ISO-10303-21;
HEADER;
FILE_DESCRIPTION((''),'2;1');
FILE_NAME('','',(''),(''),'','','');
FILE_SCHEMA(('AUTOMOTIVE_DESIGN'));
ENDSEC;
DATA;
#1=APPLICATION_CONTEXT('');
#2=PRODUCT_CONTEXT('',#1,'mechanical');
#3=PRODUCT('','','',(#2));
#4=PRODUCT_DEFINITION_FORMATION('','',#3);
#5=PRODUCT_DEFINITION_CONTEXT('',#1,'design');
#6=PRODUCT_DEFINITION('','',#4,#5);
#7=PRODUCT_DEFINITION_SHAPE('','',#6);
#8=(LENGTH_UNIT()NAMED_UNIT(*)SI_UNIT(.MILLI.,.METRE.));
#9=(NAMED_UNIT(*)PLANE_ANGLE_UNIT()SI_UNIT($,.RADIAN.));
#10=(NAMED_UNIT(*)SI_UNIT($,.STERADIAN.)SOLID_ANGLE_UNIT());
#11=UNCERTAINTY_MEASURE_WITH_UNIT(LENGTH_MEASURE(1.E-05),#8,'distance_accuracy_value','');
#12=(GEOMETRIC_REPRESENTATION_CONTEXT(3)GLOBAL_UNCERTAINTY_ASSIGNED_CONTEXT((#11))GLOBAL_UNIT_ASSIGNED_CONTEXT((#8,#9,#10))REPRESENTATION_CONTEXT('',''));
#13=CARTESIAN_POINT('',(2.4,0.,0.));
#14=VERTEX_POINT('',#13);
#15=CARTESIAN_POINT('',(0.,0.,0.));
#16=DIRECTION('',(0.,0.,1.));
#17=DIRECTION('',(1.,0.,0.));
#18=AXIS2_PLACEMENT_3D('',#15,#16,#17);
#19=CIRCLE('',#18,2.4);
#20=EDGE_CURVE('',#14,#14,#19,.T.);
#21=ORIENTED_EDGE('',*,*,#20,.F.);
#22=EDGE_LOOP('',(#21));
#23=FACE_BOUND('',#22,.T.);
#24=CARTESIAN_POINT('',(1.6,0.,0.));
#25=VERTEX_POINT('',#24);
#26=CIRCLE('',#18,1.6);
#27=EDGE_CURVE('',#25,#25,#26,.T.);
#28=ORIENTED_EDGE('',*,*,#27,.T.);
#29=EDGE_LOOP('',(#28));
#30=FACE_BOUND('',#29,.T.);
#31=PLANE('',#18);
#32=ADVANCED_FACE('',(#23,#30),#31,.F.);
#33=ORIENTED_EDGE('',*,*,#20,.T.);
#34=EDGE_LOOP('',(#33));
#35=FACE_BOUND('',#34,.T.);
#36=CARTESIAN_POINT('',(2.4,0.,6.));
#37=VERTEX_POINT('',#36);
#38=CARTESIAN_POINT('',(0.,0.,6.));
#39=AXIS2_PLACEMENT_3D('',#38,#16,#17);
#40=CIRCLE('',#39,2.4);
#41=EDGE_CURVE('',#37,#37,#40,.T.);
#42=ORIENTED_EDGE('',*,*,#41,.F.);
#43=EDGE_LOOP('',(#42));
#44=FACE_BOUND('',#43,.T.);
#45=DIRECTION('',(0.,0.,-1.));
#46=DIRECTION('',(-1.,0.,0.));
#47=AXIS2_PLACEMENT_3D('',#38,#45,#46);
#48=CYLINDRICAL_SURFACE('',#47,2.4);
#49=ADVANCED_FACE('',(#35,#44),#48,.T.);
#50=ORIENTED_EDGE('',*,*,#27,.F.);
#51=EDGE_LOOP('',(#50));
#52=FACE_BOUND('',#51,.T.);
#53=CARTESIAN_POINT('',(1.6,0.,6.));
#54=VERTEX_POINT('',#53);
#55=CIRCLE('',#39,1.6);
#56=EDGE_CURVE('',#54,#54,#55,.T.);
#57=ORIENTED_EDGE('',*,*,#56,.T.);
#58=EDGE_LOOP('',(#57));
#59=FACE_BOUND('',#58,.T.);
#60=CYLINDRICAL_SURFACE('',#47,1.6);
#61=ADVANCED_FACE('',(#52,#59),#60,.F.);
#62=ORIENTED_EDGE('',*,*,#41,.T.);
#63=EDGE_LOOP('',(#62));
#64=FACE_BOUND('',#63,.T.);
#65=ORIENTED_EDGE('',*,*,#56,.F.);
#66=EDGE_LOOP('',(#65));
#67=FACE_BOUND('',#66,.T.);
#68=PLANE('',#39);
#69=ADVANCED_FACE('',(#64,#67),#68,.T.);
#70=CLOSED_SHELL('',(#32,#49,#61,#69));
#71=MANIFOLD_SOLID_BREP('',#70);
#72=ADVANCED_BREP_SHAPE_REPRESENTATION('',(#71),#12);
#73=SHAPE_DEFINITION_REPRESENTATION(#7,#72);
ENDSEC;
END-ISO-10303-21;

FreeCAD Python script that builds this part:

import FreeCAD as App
import Part
import Sketcher

V = App.Vector
Q = App.Units.Quantity

doc = App.newDocument("Part")
body = doc.addObject("PartDesign::Body", "Body")

sketch1 = body.newObject("Sketcher::SketchObject", "Sketch")
sketch1.AttachmentSupport = (doc.getObject("XY_Plane"), [""])
sketch1.MapMode = "FlatFace"
sketch1.addGeometry([
    Part.Circle(V(0, 0, 0), V(0, 0, 1), 2.4),
    Part.Circle(V(0, 0, 0), V(0, 0, 1), 1.6),
], False)
sketch1.addConstraint([
    Sketcher.Constraint("Coincident", 0, 3, -1, 1),
    Sketcher.Constraint("Coincident", 1, 3, -1, 1),
    Sketcher.Constraint("Diameter", 0, Q("4.8 mm")),
    Sketcher.Constraint("Diameter", 1, Q("3.2 mm")),
])
pad1 = body.newObject("PartDesign::Pad", "Pad")
pad1.Profile = sketch1
pad1.Length = 6

doc.recompute()
